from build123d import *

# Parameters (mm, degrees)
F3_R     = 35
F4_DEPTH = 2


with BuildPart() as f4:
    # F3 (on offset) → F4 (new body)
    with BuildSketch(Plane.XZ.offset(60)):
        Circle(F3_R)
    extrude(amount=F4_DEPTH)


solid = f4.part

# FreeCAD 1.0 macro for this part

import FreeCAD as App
import Part
import Sketcher

V = App.Vector

doc = App.newDocument("Part")
body = doc.addObject("PartDesign::Body", "Body")

# Sketch on XZ plane
sketch1 = body.newObject("Sketcher::SketchObject", "Sketch")
sketch1.AttachmentSupport = (doc.getObject("XZ_Plane"), [""])
sketch1.MapMode = "FlatFace"
sketch1.AttachmentOffset = App.Placement(V(0, 0, 60), App.Rotation())
sketch1.addGeometry(Part.Circle(V(0, 0, 0), V(0, 0, 1), 35), False)
sketch1.addConstraint(Sketcher.Constraint("Coincident", 0, 3, -1, 1))
sketch1.addConstraint(Sketcher.Constraint("Diameter", 0, 70.0))
pad1 = body.newObject("PartDesign::Pad", "Pad")
pad1.Profile = sketch1
pad1.Length = 2

doc.recompute()
